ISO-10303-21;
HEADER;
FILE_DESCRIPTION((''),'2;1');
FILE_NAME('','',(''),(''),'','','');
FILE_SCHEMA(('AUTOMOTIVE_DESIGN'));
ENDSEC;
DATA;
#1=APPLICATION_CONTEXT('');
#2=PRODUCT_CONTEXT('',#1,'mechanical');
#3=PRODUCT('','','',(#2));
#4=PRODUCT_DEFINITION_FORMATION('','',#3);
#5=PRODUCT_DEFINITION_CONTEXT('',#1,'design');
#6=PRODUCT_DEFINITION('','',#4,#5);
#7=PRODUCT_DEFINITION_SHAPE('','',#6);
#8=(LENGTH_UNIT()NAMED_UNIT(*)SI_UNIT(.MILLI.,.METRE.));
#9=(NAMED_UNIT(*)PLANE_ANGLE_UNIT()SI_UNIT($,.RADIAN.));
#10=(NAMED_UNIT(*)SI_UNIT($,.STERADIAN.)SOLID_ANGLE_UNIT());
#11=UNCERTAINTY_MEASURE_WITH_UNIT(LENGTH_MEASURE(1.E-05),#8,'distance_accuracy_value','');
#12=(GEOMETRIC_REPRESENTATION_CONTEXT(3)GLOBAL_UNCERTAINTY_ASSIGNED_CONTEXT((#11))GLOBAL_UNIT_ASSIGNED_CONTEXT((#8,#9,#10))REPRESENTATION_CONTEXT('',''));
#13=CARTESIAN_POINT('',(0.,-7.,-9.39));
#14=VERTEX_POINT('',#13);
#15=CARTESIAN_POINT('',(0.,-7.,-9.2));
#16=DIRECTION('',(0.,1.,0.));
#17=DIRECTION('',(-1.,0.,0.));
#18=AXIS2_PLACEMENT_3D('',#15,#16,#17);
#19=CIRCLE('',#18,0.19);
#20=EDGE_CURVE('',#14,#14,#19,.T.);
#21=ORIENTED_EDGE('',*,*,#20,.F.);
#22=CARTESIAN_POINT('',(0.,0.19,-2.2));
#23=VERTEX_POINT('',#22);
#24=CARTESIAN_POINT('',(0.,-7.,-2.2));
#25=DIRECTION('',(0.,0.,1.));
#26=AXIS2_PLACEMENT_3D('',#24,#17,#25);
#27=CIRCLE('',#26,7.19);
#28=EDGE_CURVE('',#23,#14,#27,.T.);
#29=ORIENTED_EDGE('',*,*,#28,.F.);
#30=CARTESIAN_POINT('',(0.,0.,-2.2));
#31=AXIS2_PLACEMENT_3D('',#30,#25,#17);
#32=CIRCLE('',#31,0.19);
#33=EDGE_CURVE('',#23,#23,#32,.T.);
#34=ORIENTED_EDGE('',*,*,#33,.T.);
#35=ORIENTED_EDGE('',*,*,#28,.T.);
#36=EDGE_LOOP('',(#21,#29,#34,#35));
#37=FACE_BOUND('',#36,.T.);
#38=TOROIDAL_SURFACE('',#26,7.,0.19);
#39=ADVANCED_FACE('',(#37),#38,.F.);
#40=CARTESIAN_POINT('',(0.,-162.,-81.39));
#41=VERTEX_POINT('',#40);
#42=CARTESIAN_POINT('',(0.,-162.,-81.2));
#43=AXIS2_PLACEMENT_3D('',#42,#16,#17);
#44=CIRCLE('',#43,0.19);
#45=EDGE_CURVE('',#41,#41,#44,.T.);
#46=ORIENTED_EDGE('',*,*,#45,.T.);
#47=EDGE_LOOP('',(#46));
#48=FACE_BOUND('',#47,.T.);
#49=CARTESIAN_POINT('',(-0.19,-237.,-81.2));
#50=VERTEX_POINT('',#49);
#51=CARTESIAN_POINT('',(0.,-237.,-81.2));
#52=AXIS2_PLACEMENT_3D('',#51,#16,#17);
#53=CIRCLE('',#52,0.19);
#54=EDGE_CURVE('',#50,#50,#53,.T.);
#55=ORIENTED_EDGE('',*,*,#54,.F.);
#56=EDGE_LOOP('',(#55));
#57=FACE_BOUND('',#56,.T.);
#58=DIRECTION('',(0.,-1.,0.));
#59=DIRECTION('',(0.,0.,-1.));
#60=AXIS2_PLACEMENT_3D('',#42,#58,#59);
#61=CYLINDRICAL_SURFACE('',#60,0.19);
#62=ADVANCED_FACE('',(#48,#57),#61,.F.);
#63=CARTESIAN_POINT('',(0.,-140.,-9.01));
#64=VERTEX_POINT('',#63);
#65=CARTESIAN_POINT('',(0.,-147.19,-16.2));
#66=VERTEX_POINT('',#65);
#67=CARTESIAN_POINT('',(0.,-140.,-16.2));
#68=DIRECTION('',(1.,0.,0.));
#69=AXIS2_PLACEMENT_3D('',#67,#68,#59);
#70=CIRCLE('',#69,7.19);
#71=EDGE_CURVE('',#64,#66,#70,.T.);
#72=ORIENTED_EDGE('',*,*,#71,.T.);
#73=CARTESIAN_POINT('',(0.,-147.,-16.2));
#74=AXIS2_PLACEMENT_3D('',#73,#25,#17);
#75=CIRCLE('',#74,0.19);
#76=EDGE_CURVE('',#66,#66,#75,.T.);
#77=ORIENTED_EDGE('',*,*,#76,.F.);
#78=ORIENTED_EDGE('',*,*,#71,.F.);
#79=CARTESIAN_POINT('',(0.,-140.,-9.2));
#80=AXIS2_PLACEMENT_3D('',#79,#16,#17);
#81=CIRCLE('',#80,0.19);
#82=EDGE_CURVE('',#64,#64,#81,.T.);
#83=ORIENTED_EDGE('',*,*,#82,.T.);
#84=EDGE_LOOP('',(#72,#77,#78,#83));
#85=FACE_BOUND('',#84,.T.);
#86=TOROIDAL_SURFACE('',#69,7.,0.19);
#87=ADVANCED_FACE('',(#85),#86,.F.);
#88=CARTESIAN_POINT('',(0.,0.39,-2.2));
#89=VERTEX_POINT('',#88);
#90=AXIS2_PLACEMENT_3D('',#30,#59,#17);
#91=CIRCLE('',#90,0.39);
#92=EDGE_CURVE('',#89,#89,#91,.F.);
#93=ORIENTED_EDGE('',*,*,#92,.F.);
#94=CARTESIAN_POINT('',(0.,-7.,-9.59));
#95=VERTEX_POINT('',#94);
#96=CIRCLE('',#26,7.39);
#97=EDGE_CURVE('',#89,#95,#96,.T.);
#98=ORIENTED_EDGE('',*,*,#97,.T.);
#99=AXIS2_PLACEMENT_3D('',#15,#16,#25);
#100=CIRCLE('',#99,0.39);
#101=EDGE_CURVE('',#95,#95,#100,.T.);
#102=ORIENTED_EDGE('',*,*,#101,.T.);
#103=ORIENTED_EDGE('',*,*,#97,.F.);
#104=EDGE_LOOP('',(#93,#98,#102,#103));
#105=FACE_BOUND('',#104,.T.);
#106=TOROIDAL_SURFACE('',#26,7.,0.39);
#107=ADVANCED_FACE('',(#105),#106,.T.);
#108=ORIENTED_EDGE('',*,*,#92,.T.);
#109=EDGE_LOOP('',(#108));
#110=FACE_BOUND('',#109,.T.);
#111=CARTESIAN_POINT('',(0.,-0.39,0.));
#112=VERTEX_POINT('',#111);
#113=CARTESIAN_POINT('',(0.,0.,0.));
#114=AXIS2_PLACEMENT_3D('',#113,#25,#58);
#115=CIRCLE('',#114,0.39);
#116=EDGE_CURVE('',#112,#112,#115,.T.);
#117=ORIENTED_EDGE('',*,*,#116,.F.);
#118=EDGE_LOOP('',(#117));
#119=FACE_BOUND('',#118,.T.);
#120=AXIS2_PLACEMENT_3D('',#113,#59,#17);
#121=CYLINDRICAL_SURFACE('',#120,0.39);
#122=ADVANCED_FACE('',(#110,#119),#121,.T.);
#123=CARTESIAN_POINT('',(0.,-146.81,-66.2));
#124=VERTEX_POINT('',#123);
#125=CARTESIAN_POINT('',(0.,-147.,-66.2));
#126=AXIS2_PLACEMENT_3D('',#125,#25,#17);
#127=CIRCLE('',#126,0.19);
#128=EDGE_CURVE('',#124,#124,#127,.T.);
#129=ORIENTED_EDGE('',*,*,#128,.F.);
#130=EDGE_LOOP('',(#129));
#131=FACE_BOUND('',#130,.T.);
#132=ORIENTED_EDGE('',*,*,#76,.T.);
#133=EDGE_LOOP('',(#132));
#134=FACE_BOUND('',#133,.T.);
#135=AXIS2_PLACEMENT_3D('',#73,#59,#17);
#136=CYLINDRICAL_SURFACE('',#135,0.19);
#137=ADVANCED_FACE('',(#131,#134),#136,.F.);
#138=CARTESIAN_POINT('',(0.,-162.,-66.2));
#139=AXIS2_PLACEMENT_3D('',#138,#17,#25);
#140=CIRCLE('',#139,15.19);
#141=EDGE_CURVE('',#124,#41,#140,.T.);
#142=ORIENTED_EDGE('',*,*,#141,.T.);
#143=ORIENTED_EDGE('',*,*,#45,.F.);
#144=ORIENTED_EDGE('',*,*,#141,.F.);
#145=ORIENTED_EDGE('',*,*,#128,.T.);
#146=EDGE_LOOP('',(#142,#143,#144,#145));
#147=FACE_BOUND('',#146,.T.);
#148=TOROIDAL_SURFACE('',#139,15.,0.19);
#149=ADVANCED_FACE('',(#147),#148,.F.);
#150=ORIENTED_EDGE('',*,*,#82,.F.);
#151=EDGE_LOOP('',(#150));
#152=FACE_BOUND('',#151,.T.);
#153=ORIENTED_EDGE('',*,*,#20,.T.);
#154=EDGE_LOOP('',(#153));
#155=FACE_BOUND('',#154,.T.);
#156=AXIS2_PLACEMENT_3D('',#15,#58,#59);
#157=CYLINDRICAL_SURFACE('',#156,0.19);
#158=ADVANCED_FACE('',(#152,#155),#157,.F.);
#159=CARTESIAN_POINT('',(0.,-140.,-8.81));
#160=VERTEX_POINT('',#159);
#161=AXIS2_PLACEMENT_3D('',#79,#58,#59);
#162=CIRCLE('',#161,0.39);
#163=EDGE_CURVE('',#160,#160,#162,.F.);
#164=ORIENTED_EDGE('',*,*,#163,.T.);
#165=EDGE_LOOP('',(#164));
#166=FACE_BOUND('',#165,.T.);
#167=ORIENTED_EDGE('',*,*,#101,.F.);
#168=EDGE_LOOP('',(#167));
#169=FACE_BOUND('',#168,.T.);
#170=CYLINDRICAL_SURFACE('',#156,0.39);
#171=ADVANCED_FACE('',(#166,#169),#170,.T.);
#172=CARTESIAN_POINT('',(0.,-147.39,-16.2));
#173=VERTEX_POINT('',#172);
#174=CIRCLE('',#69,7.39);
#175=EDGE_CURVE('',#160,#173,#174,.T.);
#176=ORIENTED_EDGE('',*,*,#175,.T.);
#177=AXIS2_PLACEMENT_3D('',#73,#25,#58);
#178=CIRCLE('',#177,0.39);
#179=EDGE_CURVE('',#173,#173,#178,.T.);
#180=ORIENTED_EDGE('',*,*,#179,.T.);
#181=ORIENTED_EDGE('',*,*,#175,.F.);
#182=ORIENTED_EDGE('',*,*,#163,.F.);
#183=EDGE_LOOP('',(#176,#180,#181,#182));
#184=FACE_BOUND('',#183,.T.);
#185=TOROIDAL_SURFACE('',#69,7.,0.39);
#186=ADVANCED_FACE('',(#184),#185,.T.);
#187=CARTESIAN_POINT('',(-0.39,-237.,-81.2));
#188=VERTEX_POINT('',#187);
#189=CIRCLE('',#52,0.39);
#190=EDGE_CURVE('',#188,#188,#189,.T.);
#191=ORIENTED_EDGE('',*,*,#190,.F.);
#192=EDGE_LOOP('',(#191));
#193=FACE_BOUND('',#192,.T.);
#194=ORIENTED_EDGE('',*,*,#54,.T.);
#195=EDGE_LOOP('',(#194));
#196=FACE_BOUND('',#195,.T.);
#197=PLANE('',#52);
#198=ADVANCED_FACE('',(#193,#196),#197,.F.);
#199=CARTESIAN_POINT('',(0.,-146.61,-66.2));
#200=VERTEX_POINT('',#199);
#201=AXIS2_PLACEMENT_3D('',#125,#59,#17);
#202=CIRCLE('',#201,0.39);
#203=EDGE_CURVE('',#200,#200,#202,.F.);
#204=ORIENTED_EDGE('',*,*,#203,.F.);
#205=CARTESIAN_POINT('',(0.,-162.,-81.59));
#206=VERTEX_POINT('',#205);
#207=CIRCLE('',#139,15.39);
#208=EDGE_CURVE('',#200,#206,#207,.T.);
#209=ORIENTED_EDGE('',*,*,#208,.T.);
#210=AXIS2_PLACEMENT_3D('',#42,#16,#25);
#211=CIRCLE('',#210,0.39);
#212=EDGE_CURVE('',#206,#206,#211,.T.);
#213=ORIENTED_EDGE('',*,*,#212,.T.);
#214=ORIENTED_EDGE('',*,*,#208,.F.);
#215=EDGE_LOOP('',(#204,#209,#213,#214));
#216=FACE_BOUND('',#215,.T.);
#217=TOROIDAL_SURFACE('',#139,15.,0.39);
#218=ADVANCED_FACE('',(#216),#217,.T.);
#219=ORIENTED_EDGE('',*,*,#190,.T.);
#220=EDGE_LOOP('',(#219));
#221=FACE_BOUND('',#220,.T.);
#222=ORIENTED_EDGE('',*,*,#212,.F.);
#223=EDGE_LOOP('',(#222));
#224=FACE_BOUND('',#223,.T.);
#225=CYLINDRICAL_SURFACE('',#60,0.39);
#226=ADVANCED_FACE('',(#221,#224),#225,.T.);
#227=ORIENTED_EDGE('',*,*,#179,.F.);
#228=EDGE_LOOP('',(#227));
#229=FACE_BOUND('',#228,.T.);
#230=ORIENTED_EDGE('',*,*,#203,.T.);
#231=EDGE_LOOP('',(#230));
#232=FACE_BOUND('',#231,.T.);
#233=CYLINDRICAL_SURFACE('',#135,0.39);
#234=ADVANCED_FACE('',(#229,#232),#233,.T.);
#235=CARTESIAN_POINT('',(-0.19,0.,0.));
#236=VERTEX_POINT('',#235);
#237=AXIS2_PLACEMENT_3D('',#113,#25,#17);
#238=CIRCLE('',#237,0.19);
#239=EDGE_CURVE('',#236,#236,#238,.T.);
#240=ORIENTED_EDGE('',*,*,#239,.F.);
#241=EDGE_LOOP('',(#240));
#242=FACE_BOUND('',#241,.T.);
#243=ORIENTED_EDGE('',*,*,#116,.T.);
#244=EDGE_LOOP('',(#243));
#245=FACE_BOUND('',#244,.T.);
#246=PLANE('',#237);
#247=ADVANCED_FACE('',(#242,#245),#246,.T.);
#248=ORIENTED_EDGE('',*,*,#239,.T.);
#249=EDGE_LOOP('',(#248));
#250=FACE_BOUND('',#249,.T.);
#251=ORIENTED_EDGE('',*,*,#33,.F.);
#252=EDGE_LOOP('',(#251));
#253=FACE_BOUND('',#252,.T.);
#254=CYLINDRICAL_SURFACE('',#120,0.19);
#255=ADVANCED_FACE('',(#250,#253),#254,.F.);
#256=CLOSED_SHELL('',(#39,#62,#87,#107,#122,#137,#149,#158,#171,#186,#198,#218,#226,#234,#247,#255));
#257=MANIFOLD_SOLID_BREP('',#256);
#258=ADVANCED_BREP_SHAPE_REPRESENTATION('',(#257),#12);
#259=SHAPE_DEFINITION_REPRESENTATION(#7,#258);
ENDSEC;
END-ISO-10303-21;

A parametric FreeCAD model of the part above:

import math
import FreeCAD as App
import Part
import Sketcher
from FreeCAD import Vector
Q = App.Units.Quantity

doc = App.newDocument("Part")
body = doc.addObject("PartDesign::Body", "Body")

# Sketch on XY plane
sketch1 = body.newObject("Sketcher::SketchObject", "Sketch")
sketch1.AttachmentSupport = (doc.getObject("XY_Plane"), [""])
sketch1.MapMode = "FlatFace"
sketch1.addGeometry([
    Part.Circle(Vector(0, 0, 0), Vector(0, 0, 1), 0.39),
    Part.Circle(Vector(0, 0, 0), Vector(0, 0, 1), 0.19),
], False)
sketch1.addConstraint([
    Sketcher.Constraint("Coincident", 0, 3, -1, 1),
    Sketcher.Constraint("Coincident", 1, 3, -1, 1),
    Sketcher.Constraint("Diameter", 0, Q("0.78 mm")),
    Sketcher.Constraint("Diameter", 1, Q("0.38 mm")),
])

# Sketch on YZ plane
sketch2 = body.newObject("Sketcher::SketchObject", "Sketch001")
sketch2.AttachmentSupport = (doc.getObject("YZ_Plane"), [""])
sketch2.MapMode = "FlatFace"
sketch2.addGeometry([
    Part.LineSegment(Vector(0, 0, 0), Vector(0, -2.2, 0)),  # 0
    Part.ArcOfCircle(Part.Circle(Vector(-7, -2.2, 0), Vector(0, 0, 1), 7), math.radians(-90), math.radians(0)),  # 1
    Part.LineSegment(Vector(-7, -9.2, 0), Vector(-140, -9.2, 0)),  # 2
    Part.ArcOfCircle(Part.Circle(Vector(-140, -16.2, 0), Vector(0, 0, 1), 7), math.radians(90), math.radians(180)),  # 3
    Part.LineSegment(Vector(-147, -16.2, 0), Vector(-147, -66.2, 0)),  # 4
    Part.ArcOfCircle(Part.Circle(Vector(-162, -66.2, 0), Vector(0, 0, 1), 15), math.radians(-90), math.radians(0)),  # 5
    Part.LineSegment(Vector(-162, -81.2, 0), Vector(-237, -81.2, 0)),  # 6
], False)
sketch2.addConstraint([
    Sketcher.Constraint("Tangent", 0, 2, 1, 2),
    Sketcher.Constraint("Tangent", 1, 1, 2, 1),
    Sketcher.Constraint("Tangent", 2, 2, 3, 1),
    Sketcher.Constraint("Tangent", 3, 2, 4, 1),
    Sketcher.Constraint("Tangent", 4, 2, 5, 2),
    Sketcher.Constraint("Tangent", 5, 1, 6, 1),
    Sketcher.Constraint("Vertical", 0),
    Sketcher.Constraint("Horizontal", 2),
    Sketcher.Constraint("Vertical", 4),
    Sketcher.Constraint("Horizontal", 6),
    Sketcher.Constraint("Coincident", 0, 1, -1, 1),
    Sketcher.Constraint("Equal", 1, 3),
    Sketcher.Constraint("Radius", 1, Q("7 mm")),
    Sketcher.Constraint("Radius", 5, Q("15 mm")),
    Sketcher.Constraint("DistanceX", 2, 2, 2, 1, Q("133 mm")),
    Sketcher.Constraint("DistanceX", 6, 2, 6, 1, Q("75 mm")),
    Sketcher.Constraint("DistanceY", 4, 2, 4, 1, Q("50 mm")),
    Sketcher.Constraint("DistanceY", 0, 2, 0, 1, Q("2.2 mm")),
])
doc.recompute()

additivepipe = body.newObject("PartDesign::AdditivePipe", "AdditivePipe")
additivepipe.Profile = sketch1
additivepipe.Spine = (sketch2, ["Edge1", "Edge2", "Edge3", "Edge4", "Edge5", "Edge6", "Edge7"])

doc.recompute()
